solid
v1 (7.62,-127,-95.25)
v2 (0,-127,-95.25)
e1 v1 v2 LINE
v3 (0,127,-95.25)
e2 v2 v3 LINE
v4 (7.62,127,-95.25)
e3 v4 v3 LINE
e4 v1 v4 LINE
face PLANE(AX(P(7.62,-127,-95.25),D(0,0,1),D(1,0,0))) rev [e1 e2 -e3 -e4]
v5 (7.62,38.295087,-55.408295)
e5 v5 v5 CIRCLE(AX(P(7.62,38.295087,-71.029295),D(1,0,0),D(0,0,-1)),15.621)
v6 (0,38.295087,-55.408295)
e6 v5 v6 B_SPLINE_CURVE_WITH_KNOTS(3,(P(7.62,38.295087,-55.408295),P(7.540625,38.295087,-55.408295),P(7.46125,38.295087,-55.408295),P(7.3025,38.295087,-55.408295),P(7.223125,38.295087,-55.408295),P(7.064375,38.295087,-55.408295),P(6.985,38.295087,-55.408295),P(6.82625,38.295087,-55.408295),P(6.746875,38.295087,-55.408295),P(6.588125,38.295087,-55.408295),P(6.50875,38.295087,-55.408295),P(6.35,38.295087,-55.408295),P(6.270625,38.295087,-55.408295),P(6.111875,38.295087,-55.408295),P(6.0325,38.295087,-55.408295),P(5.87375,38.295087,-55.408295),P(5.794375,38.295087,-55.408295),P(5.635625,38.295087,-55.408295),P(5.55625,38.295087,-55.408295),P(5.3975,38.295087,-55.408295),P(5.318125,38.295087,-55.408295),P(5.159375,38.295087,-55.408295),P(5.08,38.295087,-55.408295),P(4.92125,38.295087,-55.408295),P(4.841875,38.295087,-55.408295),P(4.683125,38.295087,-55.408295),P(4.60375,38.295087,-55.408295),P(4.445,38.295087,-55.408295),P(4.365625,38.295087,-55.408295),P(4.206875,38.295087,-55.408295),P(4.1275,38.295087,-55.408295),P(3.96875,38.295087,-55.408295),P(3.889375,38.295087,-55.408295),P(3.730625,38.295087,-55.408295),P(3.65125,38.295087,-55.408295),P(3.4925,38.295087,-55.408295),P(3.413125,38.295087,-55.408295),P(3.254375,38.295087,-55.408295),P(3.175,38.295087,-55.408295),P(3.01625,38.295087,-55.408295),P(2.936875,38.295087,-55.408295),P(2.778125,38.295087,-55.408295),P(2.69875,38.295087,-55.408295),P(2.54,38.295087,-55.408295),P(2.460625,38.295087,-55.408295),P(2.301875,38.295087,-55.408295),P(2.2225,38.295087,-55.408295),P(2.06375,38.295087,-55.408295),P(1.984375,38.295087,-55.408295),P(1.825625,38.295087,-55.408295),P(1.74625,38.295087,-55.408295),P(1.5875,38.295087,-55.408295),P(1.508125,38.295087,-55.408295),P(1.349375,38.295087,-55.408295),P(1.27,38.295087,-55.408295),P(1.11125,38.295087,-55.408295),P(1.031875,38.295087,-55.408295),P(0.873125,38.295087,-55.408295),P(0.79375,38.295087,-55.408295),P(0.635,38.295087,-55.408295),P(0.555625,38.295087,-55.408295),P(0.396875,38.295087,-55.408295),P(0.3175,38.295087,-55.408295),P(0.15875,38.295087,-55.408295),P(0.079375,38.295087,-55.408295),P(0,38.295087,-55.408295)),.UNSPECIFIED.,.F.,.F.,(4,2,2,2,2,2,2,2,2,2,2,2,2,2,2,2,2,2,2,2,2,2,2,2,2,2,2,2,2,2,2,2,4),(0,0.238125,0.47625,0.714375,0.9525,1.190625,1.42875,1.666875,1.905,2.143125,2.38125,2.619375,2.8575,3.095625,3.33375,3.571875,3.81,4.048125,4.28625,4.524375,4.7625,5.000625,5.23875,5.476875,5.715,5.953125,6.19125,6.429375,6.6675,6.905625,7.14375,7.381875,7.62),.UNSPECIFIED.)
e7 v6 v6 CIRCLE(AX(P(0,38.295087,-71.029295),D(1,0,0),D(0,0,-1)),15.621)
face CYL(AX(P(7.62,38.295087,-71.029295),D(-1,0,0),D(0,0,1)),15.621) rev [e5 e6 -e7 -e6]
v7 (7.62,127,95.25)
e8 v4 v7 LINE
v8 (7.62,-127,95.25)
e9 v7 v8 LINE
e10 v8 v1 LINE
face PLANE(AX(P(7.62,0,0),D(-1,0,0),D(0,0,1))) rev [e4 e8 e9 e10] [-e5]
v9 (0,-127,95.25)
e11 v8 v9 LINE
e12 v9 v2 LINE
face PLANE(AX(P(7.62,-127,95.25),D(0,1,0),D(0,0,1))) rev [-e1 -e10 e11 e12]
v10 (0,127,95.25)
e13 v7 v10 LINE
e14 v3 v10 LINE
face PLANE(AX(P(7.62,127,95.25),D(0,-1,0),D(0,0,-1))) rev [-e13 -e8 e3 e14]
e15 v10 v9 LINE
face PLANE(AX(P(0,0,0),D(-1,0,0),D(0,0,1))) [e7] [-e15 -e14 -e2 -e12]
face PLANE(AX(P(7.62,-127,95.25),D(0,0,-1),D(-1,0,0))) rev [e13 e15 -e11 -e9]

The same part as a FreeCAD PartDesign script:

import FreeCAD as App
import Part
import Sketcher
from FreeCAD import Vector
Q = App.Units.Quantity


def add_polygon(sketch, points):
    """Adds a closed chain of lines whose ends are joined by coincident constraints."""
    first, n = sketch.GeometryCount, len(points)
    for a, b in zip(points, points[1:] + points[:1]):
        sketch.addGeometry(Part.LineSegment(App.Vector(*a, 0), App.Vector(*b, 0)), False)
    for i in range(n):
        sketch.addConstraint(Sketcher.Constraint("Coincident", first + i, 2, first + (i + 1) % n, 1))

doc = App.newDocument("Part")
body = doc.addObject("PartDesign::Body", "Body")

sketch1 = body.newObject("Sketcher::SketchObject", "Sketch")
sketch1.AttachmentSupport = (doc.getObject("YZ_Plane"), [""])
sketch1.MapMode = "FlatFace"
add_polygon(sketch1, [(127, 95), (-127, 95), (-127, -95), (127, -95)])
sketch1.addGeometry(Part.Circle(Vector(38, -71, 0), Vector(0, 0, 1), 16), False)
sketch1.addConstraint([
    Sketcher.Constraint("Horizontal", 0),
    Sketcher.Constraint("Vertical", 1),
    Sketcher.Constraint("Horizontal", 2),
    Sketcher.Constraint("Vertical", 3),
    Sketcher.Constraint("Symmetric", 0, 2, 2, 2, -1, 1),
    Sketcher.Constraint("Diameter", 4, Q("1.23 in")),
    Sketcher.Constraint("DistanceX", 0, 2, 0, 1, Q("10 in")),
    Sketcher.Constraint("DistanceY", 1, 2, 1, 1, Q("7.5 in")),
    Sketcher.Constraint("DistanceX", -1, 1, 4, 3, 38.295087),
    Sketcher.Constraint("DistanceY", 4, 3, -1, 1, 71.029295),
])
pad1 = body.newObject("PartDesign::Pad", "Pad")
pad1.Profile = sketch1
pad1.Length = Q("0.3 in")

doc.recompute()
